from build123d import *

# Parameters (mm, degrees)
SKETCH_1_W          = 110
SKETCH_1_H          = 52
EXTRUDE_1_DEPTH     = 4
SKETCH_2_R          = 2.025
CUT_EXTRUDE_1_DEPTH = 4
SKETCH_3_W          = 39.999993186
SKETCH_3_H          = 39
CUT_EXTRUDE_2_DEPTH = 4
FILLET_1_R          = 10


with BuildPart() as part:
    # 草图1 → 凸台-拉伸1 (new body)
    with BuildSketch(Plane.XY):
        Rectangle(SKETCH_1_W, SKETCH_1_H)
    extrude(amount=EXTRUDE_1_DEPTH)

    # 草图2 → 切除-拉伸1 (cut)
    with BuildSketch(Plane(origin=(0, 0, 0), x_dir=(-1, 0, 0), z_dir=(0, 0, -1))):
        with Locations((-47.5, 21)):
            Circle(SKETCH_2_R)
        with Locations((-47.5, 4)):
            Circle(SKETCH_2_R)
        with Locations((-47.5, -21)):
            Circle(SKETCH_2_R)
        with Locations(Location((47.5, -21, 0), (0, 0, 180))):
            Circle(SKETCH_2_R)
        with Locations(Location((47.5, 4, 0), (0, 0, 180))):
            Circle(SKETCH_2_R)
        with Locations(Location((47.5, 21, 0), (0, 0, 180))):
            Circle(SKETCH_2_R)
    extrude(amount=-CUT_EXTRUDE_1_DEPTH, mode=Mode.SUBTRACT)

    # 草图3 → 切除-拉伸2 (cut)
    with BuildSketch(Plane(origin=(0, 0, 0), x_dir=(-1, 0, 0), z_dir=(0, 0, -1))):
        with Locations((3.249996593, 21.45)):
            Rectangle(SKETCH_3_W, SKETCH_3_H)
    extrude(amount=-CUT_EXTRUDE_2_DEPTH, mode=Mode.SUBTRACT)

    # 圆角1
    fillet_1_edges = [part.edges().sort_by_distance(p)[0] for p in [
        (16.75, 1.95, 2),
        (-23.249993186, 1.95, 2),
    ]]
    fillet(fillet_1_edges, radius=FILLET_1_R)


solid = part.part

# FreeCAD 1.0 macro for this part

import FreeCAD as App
import Part
import Sketcher
from FreeCAD import Vector


def edges_at(feature, points):
    """Names of the edges that pass closest to the given points."""
    edges = feature.Shape.Edges
    near = lambda p: min(range(len(edges)), key=lambda i: edges[i].distToShape(Part.Vertex(*p))[0])
    return sorted({f"Edge{near(p) + 1}" for p in points})


def add_polygon(sketch, points):
    """Adds a closed chain of lines whose ends are joined by coincident constraints."""
    first, n = sketch.GeometryCount, len(points)
    for a, b in zip(points, points[1:] + points[:1]):
        sketch.addGeometry(Part.LineSegment(App.Vector(*a, 0), App.Vector(*b, 0)), False)
    for i in range(n):
        sketch.addConstraint(Sketcher.Constraint("Coincident", first + i, 2, first + (i + 1) % n, 1))

doc = App.newDocument("Part")
body = doc.addObject("PartDesign::Body", "Body")

sketch1 = doc.addObject("Sketcher::SketchObject", "Sketch")
body.addObject(sketch1)
sketch1.AttachmentSupport = (doc.XY_Plane, [""])
sketch1.MapMode = "FlatFace"
add_polygon(sketch1, [(-55, 26), (-55, -26), (55, -26), (55, 26)])
sketch1.addConstraint([
    Sketcher.Constraint("Vertical", 0),
    Sketcher.Constraint("Horizontal", 1),
    Sketcher.Constraint("Vertical", 2),
    Sketcher.Constraint("Horizontal", 3),
    Sketcher.Constraint("Symmetric", 0, 2, 2, 2, -1, 1),
    Sketcher.Constraint("DistanceX", 1, 1, 1, 2, 110.0),
    Sketcher.Constraint("DistanceY", 0, 2, 0, 1, 52.0),
])
pad1 = doc.addObject("PartDesign::Pad", "Pad")
body.addObject(pad1)
pad1.Profile = sketch1
pad1.Length = 4

sketch2 = doc.addObject("Sketcher::SketchObject", "Sketch001")
body.addObject(sketch2)
sketch2.AttachmentSupport = (doc.XY_Plane, [""])
sketch2.MapMode = "FlatFace"
sketch2.addGeometry([
    Part.Circle(Vector(47.5, 21, 0), Vector(0, 0, 1), 2),
    Part.Circle(Vector(47.5, 4, 0), Vector(0, 0, 1), 2),
    Part.Circle(Vector(47.5, -21, 0), Vector(0, 0, 1), 2),
    Part.Circle(Vector(-47.5, -21, 0), Vector(0, 0, 1), 2),
    Part.Circle(Vector(-47.5, 4, 0), Vector(0, 0, 1), 2),
    Part.Circle(Vector(-47.5, 21, 0), Vector(0, 0, 1), 2),
], False)
sketch2.addConstraint([
    Sketcher.Constraint("Equal", 0, 1),
    Sketcher.Constraint("Equal", 1, 2),
    Sketcher.Constraint("Equal", 2, 3),
    Sketcher.Constraint("Equal", 3, 4),
    Sketcher.Constraint("Equal", 4, 5),
    Sketcher.Constraint("Symmetric", 0, 3, 3, 3, -1, 1),
    Sketcher.Constraint("Symmetric", 2, 3, 5, 3, -1, 1),
    Sketcher.Constraint("Symmetric", 2, 3, 3, 3, -2),
    Sketcher.Constraint("Symmetric", 1, 3, 4, 3, -2),
    Sketcher.Constraint("Vertical", 0, 3, 1, 3),
    Sketcher.Constraint("Diameter", 0, 4.05),
    Sketcher.Constraint("DistanceY", -1, 1, 0, 3, 21.0),
    Sketcher.Constraint("DistanceY", -1, 1, 1, 3, 4.0),
    Sketcher.Constraint("DistanceX", 3, 3, 2, 3, 95.0),
])
pocket1 = doc.addObject("PartDesign::Pocket", "Pocket")
body.addObject(pocket1)
pocket1.Profile = sketch2
pocket1.Length = 4
pocket1.Reversed = True

sketch3 = doc.addObject("Sketcher::SketchObject", "Sketch002")
body.addObject(sketch3)
sketch3.AttachmentSupport = (doc.XY_Plane, [""])
sketch3.MapMode = "FlatFace"
add_polygon(sketch3, [(17, 41), (17, 2), (-23, 2), (-23, 41)])
sketch3.addConstraint([
    Sketcher.Constraint("Vertical", 0),
    Sketcher.Constraint("Horizontal", 1),
    Sketcher.Constraint("Vertical", 2),
    Sketcher.Constraint("Horizontal", 3),
    Sketcher.Constraint("DistanceY", 0, 2, 0, 1, 39.0),
    Sketcher.Constraint("DistanceX", -1, 1, 0, 2, 16.75),
    Sketcher.Constraint("DistanceY", -1, 1, 0, 2, 1.95),
    Sketcher.Constraint("DistanceX", 1, 2, 1, 1, 39.999993),
])
pocket2 = doc.addObject("PartDesign::Pocket", "Pocket001")
body.addObject(pocket2)
pocket2.Profile = sketch3
pocket2.Length = 4
pocket2.Reversed = True
doc.recompute()

fillet = doc.addObject("PartDesign::Fillet", "Fillet")
body.addObject(fillet)
fillet.Base = (pocket2, edges_at(pocket2, [(16.75, 1.95, 2), (-23.25, 1.95, 2)]))
fillet.Radius = 10

doc.recompute()
